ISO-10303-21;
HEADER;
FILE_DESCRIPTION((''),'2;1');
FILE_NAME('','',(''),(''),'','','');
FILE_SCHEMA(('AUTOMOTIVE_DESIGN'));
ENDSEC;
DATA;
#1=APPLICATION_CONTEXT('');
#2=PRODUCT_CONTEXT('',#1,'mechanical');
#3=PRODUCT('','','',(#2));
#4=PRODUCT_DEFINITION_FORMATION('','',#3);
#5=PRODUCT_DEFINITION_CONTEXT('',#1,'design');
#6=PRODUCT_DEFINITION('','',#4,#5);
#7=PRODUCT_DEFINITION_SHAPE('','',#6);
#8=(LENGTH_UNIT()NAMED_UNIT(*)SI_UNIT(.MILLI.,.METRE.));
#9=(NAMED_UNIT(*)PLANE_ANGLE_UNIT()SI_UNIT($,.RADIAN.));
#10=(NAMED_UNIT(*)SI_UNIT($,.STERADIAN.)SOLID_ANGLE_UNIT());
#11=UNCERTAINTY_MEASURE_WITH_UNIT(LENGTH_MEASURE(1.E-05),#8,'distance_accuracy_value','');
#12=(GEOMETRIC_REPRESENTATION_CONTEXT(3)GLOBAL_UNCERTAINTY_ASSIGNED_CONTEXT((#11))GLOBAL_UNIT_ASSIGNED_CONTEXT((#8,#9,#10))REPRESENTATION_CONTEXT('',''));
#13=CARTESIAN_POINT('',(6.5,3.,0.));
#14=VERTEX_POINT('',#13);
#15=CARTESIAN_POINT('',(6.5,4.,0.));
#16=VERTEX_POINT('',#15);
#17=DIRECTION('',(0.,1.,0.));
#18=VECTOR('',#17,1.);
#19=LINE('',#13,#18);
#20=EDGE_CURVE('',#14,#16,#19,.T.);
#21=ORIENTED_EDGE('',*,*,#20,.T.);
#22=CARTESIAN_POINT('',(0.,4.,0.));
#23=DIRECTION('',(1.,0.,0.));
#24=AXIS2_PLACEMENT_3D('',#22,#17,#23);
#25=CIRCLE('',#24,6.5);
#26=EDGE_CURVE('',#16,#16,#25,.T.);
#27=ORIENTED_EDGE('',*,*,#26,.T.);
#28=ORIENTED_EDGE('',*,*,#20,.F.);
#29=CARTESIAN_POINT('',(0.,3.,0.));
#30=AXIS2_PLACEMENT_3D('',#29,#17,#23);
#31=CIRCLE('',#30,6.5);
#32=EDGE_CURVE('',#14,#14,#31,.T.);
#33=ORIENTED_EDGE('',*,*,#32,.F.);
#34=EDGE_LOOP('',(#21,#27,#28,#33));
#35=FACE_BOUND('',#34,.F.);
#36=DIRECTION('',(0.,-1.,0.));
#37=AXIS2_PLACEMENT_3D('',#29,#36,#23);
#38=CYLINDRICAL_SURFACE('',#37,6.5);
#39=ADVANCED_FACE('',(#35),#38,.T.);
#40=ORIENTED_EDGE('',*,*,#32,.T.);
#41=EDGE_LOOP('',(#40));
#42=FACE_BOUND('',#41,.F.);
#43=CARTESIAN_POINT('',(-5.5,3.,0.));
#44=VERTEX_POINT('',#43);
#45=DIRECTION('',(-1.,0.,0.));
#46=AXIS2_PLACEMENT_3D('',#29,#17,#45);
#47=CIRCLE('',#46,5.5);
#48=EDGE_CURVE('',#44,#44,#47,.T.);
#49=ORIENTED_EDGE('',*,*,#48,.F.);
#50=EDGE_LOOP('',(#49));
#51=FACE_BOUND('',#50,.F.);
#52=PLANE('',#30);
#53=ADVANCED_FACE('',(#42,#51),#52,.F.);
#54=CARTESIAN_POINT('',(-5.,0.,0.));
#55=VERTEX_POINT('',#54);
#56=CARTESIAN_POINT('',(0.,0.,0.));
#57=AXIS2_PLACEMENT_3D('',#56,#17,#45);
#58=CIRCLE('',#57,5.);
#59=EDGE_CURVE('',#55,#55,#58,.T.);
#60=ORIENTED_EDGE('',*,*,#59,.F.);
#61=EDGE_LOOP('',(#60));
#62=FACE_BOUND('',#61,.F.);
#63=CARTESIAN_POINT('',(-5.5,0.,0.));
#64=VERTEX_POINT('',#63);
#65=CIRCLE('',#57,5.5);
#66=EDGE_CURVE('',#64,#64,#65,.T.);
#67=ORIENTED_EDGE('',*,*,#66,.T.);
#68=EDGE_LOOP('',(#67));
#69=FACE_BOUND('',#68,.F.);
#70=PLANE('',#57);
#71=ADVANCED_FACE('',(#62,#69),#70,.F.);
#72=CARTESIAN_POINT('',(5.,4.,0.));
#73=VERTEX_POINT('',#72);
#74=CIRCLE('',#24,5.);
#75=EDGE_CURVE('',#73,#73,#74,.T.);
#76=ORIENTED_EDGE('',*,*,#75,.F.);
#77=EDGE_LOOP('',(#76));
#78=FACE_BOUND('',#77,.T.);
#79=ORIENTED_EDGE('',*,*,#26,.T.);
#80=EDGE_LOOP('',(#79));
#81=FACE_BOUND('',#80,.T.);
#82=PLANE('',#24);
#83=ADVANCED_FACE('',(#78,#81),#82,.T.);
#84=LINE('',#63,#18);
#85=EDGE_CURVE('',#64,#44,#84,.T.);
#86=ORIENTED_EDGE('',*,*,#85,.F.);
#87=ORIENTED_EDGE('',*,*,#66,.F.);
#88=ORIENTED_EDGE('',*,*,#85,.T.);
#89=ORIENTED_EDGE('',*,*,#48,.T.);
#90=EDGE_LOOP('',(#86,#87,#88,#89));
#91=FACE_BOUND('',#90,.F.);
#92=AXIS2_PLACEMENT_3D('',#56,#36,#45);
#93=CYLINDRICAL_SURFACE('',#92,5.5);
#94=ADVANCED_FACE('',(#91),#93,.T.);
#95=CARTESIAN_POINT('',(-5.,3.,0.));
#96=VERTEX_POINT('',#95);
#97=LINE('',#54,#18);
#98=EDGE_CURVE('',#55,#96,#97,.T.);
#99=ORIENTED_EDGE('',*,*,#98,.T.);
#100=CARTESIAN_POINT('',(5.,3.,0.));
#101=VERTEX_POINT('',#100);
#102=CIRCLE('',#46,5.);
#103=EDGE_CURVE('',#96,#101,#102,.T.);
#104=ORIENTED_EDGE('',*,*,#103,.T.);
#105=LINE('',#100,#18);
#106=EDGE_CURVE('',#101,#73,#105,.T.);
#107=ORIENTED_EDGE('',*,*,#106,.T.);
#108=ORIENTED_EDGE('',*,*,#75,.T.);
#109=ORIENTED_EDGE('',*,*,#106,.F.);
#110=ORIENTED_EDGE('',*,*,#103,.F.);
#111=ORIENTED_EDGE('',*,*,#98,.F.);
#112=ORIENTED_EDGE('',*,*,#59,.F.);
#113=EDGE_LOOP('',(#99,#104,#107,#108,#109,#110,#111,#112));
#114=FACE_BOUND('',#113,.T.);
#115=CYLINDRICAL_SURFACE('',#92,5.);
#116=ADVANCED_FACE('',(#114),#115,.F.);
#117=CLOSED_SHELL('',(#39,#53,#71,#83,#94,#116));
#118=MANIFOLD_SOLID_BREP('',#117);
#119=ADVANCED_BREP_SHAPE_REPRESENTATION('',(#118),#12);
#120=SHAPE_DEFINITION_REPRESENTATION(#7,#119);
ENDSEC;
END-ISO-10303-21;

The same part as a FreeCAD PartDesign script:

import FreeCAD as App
import Part
import Sketcher
Q = App.Units.Quantity

doc = App.newDocument("Part")
params = doc.addObject("Spreadsheet::Sheet", "Params")
for row, (alias, value) in enumerate([
    ("sketch1_diameter", "11 mm"),
    ("sketch1_diameter2", "10 mm"),
    ("pad1_length", "3 mm"),
    ("sketch2_diameter", "13 mm"),
    ("sketch2_diameter2", "10 mm"),
    ("pad2_length", "1 mm"),
], start=1):
    params.set(f"A{row}", alias)
    params.set(f"B{row}", "=" + value)
    params.setAlias(f"B{row}", alias)

body = doc.addObject("PartDesign::Body", "Body")

sketch1 = body.newObject("Sketcher::SketchObject", "Sketch")
sketch1.AttachmentSupport = (doc.getObject("XZ_Plane"), [""])
sketch1.MapMode = "FlatFace"
sketch1.addGeometry(Part.Circle(App.Vector(0, 0, 0), App.Vector(0, 0, 1), 6), False)
sketch1.addGeometry(Part.Circle(App.Vector(0, 0, 0), App.Vector(0, 0, 1), 5), False)
sketch1.addConstraint(Sketcher.Constraint("Coincident", 0, 3, -1, 1))
sketch1.addConstraint(Sketcher.Constraint("Coincident", 1, 3, -1, 1))
sketch1.addConstraint(Sketcher.Constraint("Diameter", 0, Q("11 mm")))
sketch1.addConstraint(Sketcher.Constraint("Diameter", 1, Q("10 mm")))
sketch1.setExpression("Constraints[2]", "Params.sketch1_diameter")
sketch1.setExpression("Constraints[3]", "Params.sketch1_diameter2")
pad1 = body.newObject("PartDesign::Pad", "Pad")
pad1.Profile = sketch1
pad1.setExpression("Length", "Params.pad1_length")
pad1.Reversed = True

sketch2 = body.newObject("Sketcher::SketchObject", "Sketch001")
sketch2.AttachmentSupport = (doc.getObject("XZ_Plane"), [""])
sketch2.MapMode = "FlatFace"
sketch2.AttachmentOffset = App.Placement(App.Vector(0, 0, -3), App.Rotation())
sketch2.addGeometry(Part.Circle(App.Vector(0, 0, 0), App.Vector(0, 0, 1), 6), False)
sketch2.addGeometry(Part.Circle(App.Vector(0, 0, 0), App.Vector(0, 0, 1), 5), False)
sketch2.addConstraint(Sketcher.Constraint("Coincident", 0, 3, -1, 1))
sketch2.addConstraint(Sketcher.Constraint("Coincident", 1, 3, -1, 1))
sketch2.addConstraint(Sketcher.Constraint("Diameter", 0, Q("13 mm")))
sketch2.addConstraint(Sketcher.Constraint("Diameter", 1, Q("10 mm")))
sketch2.setExpression("Constraints[2]", "Params.sketch2_diameter")
sketch2.setExpression("Constraints[3]", "Params.sketch2_diameter2")
pad2 = body.newObject("PartDesign::Pad", "Pad001")
pad2.Profile = sketch2
pad2.setExpression("Length", "Params.pad2_length")
pad2.Reversed = True

doc.recompute()
